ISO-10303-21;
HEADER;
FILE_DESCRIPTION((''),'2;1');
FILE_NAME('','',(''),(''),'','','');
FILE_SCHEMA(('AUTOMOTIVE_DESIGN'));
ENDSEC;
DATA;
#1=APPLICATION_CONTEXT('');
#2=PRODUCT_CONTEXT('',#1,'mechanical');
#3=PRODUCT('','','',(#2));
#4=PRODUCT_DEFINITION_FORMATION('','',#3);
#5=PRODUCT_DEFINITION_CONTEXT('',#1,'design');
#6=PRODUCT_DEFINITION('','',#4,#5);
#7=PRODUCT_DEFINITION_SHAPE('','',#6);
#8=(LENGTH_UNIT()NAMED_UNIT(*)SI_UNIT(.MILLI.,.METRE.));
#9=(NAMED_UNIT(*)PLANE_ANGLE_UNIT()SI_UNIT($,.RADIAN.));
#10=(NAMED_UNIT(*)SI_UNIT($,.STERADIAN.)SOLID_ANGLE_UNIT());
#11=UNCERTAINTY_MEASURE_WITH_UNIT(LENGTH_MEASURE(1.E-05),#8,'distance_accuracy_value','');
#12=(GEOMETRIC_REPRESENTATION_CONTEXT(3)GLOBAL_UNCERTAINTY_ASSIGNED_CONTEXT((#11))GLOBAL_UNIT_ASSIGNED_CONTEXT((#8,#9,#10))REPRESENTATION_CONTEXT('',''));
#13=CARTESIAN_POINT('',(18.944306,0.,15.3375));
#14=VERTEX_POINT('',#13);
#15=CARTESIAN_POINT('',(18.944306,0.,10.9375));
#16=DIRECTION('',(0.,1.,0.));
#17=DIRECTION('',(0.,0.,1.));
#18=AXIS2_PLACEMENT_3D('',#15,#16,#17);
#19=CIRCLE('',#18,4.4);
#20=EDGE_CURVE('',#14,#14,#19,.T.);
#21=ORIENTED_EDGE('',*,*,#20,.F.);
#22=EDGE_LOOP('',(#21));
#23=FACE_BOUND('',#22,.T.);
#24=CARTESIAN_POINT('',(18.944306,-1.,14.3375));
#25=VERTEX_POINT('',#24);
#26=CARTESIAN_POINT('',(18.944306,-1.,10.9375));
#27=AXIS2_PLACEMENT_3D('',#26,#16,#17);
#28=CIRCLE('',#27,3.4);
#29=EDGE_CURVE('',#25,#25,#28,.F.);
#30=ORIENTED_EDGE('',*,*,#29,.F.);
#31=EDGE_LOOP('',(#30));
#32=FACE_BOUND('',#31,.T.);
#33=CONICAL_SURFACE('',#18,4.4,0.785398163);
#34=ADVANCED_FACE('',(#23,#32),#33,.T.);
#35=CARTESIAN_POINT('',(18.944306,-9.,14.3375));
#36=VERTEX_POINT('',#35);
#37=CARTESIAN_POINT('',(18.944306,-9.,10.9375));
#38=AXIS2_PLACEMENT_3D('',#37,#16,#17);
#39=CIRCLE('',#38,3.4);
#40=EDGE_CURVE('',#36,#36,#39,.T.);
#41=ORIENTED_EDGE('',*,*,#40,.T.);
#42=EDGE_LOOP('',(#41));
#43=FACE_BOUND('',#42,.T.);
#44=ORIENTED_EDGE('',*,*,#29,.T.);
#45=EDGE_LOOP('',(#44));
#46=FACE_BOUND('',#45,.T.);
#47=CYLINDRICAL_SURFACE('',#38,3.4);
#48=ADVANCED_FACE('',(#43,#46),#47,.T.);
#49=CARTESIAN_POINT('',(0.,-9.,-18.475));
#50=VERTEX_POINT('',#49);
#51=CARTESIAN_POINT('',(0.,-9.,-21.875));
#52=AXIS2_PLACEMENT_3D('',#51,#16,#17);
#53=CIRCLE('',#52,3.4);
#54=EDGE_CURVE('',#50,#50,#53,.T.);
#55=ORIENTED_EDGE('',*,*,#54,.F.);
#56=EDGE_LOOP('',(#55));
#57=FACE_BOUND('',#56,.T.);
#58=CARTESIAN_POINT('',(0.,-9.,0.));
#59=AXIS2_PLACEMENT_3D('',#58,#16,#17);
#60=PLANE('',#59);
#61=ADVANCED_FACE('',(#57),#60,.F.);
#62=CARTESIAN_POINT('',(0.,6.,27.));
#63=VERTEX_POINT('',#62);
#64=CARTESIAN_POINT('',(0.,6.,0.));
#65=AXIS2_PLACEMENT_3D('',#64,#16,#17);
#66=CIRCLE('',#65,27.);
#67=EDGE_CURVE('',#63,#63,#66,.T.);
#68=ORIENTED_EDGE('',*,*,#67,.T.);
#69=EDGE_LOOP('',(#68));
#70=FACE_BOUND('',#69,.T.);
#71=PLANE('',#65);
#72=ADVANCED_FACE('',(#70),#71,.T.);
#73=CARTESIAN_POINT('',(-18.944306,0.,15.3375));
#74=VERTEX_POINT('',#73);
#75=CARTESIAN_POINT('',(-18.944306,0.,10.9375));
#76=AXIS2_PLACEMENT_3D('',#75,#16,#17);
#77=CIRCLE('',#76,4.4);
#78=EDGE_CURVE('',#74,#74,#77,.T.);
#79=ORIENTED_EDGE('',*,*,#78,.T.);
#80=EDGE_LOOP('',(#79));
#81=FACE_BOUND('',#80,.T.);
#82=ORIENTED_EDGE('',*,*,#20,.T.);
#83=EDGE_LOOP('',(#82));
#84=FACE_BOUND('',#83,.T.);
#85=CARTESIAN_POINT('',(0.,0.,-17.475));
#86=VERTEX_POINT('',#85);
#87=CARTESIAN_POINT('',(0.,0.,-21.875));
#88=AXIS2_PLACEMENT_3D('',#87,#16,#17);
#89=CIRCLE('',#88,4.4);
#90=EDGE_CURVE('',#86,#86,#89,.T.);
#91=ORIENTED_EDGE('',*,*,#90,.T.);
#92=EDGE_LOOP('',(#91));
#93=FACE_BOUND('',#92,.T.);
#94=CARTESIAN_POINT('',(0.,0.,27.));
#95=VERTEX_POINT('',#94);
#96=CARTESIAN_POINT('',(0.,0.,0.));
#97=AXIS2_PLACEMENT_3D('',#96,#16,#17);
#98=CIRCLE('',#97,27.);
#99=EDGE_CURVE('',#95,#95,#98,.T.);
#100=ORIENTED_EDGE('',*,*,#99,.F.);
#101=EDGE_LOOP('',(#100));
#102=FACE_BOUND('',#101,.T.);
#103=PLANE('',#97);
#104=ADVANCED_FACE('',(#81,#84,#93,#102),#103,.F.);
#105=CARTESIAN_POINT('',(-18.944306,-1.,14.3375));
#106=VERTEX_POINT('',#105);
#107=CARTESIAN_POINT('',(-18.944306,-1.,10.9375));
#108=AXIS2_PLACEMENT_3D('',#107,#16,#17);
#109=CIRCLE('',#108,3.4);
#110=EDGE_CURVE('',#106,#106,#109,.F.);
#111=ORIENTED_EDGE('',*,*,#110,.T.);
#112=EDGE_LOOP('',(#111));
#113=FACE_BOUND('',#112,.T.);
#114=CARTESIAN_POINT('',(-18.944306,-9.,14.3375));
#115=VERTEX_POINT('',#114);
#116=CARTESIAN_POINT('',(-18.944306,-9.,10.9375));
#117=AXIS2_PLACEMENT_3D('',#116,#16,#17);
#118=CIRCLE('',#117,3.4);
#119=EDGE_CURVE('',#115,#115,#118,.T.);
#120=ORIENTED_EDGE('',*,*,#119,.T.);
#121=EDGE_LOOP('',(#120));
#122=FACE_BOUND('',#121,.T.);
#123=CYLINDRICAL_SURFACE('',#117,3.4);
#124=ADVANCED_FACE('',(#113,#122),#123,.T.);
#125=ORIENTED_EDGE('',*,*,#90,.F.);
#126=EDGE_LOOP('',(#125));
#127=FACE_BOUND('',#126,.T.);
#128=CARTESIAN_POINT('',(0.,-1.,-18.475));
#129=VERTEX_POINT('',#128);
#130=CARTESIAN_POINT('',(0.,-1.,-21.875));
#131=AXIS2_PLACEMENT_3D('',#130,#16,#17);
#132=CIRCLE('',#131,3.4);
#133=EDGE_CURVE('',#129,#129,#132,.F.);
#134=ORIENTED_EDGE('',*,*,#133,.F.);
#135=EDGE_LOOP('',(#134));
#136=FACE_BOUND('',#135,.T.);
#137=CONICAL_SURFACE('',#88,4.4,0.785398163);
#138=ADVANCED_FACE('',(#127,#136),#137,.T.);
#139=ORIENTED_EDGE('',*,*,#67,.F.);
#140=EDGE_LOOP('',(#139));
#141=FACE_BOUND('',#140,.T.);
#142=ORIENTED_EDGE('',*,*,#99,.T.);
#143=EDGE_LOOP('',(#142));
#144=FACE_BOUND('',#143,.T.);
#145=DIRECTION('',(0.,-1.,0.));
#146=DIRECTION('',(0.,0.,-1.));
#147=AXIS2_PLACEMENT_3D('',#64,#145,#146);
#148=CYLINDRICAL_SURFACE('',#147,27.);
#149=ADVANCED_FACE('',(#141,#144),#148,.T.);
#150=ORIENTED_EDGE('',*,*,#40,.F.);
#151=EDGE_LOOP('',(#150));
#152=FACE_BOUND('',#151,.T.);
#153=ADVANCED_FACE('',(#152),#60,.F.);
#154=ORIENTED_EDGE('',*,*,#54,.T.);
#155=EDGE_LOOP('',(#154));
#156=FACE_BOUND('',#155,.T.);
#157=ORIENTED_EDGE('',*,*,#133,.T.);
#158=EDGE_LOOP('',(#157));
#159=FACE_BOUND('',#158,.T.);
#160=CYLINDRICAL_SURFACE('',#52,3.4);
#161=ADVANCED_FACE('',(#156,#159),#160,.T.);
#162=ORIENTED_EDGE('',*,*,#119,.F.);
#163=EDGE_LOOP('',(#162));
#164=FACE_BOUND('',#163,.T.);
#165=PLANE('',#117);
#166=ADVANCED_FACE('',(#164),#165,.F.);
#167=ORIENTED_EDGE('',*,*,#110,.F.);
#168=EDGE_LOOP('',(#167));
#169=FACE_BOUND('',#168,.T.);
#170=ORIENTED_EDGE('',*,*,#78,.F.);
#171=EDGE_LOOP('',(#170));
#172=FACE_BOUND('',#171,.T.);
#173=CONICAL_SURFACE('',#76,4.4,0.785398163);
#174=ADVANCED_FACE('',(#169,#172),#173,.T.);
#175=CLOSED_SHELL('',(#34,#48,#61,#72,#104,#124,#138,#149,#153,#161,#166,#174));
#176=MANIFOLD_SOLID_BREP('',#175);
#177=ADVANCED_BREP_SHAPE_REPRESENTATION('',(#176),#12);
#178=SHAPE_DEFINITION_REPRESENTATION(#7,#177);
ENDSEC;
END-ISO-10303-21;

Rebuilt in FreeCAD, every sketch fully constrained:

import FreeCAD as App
import Part
import Sketcher
Q = App.Units.Quantity


def edges_at(feature, points):
    """Names of the edges that pass closest to the given points."""
    edges = feature.Shape.Edges
    near = lambda p: min(range(len(edges)), key=lambda i: edges[i].distToShape(Part.Vertex(*p))[0])
    return sorted({f"Edge{near(p) + 1}" for p in points})

doc = App.newDocument("Part")
params = doc.addObject("Spreadsheet::Sheet", "Params")
for row, (alias, value) in enumerate([
    ("sketch1_diameter", "54 mm"),
    ("pad1_length", "6 mm"),
    ("sketch2_diameter", "6.8 mm"),
    ("pad2_length", "9 mm"),
    ("chamfer_size", "1 mm"),
], start=1):
    params.set(f"A{row}", alias)
    params.set(f"B{row}", "=" + value)
    params.setAlias(f"B{row}", alias)

body = doc.addObject("PartDesign::Body", "Body")

# Sketch on XZ plane
sketch1 = body.newObject("Sketcher::SketchObject", "Sketch")
sketch1.AttachmentSupport = (doc.getObject("XZ_Plane"), [""])
sketch1.MapMode = "FlatFace"
sketch1.addGeometry(Part.Circle(App.Vector(0, 0, 0), App.Vector(0, 0, 1), 27), False)
sketch1.addConstraint([
    Sketcher.Constraint("Coincident", 0, 3, -1, 1),
    Sketcher.Constraint("Diameter", 0, Q("54 mm")),
])
sketch1.setExpression("Constraints[1]", "Params.sketch1_diameter")
pad1 = body.newObject("PartDesign::Pad", "Pad")
pad1.Profile = sketch1
pad1.setExpression("Length", "Params.pad1_length")
pad1.Reversed = True

# Sketch on XZ plane
sketch2 = body.newObject("Sketcher::SketchObject", "Sketch001")
sketch2.AttachmentSupport = (doc.getObject("XZ_Plane"), [""])
sketch2.MapMode = "FlatFace"
sketch2.addGeometry([
    Part.Circle(App.Vector(0, -21.875, 0), App.Vector(0, 0, 1), 3.4),
    Part.Circle(App.Vector(18.944306, 10.9375, 0), App.Vector(0, 0, 1), 3.4),
    Part.Circle(App.Vector(-18.944306, 10.9375, 0), App.Vector(0, 0, 1), 3.4),
], False)
sketch2.addConstraint([
    Sketcher.Constraint("Equal", 0, 1),
    Sketcher.Constraint("Equal", 1, 2),
    Sketcher.Constraint("Symmetric", 1, 3, 2, 3, -2),
    Sketcher.Constraint("PointOnObject", 0, 3, -2),
    Sketcher.Constraint("Diameter", 0, Q("6.8 mm")),
    Sketcher.Constraint("DistanceY", 0, 3, -1, 1, Q("21.875 mm")),
    Sketcher.Constraint("DistanceY", -1, 1, 1, 3, Q("10.9375 mm")),
    Sketcher.Constraint("DistanceX", 2, 3, 1, 3, Q("37.888611 mm")),
])
sketch2.setExpression("Constraints[4]", "Params.sketch2_diameter")
pad2 = body.newObject("PartDesign::Pad", "Pad001")
pad2.Profile = sketch2
pad2.setExpression("Length", "Params.pad2_length")
doc.recompute()

chamfer = body.newObject("PartDesign::Chamfer", "Chamfer")
chamfer.Base = (pad2, edges_at(pad2, [(-18.944, 0, 7.537), (18.944, 0, 7.537), (0, 0, -25.275)]))
chamfer.setExpression("Size", "Params.chamfer_size")

doc.recompute()
